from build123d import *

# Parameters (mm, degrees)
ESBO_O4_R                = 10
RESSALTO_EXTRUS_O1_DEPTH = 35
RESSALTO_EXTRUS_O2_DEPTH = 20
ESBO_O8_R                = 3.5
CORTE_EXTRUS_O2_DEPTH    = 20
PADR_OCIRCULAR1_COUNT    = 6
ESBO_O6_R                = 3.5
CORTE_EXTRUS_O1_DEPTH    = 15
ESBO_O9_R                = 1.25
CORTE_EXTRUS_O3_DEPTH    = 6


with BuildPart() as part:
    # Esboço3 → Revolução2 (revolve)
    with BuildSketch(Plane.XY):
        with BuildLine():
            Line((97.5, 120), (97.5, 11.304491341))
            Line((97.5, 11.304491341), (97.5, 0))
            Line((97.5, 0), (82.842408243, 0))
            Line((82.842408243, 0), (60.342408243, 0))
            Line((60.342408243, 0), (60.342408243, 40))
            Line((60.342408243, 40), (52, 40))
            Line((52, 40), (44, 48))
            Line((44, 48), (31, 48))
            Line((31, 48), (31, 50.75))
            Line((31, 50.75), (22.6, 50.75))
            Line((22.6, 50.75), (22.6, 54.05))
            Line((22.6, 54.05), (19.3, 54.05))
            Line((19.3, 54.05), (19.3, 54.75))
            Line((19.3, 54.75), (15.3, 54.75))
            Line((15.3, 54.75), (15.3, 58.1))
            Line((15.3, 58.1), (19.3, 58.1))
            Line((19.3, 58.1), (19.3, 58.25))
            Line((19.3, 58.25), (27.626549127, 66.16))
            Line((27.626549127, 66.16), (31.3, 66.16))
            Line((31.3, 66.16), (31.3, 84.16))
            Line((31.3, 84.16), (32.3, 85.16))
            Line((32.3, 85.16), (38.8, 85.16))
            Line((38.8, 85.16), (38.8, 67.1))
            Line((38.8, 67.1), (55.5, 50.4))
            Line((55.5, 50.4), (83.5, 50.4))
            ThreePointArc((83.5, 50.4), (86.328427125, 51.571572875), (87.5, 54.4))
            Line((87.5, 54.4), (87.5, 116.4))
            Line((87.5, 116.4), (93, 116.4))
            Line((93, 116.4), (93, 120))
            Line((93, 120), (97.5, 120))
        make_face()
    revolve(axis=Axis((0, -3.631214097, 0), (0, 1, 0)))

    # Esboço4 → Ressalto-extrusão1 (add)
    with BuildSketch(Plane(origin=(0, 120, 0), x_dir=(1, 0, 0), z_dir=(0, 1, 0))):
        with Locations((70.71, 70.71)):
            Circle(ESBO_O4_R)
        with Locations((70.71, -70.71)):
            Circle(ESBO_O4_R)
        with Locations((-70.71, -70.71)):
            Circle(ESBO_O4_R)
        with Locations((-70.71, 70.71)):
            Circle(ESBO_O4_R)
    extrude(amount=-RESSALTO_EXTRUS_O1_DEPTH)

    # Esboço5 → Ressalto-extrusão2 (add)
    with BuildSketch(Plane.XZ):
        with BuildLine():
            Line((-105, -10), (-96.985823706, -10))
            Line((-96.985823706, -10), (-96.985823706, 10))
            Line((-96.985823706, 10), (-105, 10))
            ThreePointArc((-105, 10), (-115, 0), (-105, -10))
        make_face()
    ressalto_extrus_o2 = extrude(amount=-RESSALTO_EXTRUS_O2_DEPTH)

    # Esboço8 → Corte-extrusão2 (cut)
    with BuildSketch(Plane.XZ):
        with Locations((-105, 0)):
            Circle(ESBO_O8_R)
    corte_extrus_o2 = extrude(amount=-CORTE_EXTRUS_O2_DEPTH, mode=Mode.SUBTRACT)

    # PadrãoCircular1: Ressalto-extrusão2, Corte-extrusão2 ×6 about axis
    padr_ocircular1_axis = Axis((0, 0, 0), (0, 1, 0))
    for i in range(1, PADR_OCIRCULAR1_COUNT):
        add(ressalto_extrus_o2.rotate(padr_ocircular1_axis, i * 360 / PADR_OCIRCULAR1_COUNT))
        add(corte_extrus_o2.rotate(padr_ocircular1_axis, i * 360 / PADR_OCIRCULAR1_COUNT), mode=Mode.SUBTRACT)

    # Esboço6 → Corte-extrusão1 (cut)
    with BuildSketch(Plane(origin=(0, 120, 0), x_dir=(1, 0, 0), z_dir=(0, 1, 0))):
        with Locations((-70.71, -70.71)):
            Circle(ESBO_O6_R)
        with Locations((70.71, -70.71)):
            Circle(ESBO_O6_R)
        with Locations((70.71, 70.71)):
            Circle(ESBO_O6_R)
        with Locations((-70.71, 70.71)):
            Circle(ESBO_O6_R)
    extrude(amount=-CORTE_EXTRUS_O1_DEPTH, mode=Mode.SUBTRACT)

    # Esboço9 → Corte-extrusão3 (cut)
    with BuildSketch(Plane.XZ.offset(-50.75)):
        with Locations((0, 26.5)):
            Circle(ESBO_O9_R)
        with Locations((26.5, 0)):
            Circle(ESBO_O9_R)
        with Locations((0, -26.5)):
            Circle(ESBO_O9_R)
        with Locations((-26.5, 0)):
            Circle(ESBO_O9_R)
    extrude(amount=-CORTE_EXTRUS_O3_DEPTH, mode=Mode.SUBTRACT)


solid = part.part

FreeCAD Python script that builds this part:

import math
import FreeCAD as App
import Part
import Sketcher
Q = App.Units.Quantity

doc = App.newDocument("Part")
body = doc.addObject("PartDesign::Body", "Body")

# Sketch on XY plane
sketch1 = doc.addObject("Sketcher::SketchObject", "Sketch")
body.addObject(sketch1)
sketch1.AttachmentSupport = (doc.XY_Plane, [""])
sketch1.MapMode = "FlatFace"
sketch1.addGeometry([
    Part.LineSegment(App.Vector(97.5, 0, 0), App.Vector(97.5, 120, 0)),  # 0
    Part.LineSegment(App.Vector(97.5, 120, 0), App.Vector(93, 120, 0)),  # 1
    Part.LineSegment(App.Vector(93, 120, 0), App.Vector(93, 116.4, 0)),  # 2
    Part.LineSegment(App.Vector(93, 116.4, 0), App.Vector(87.5, 116.4, 0)),  # 3
    Part.LineSegment(App.Vector(87.5, 116.4, 0), App.Vector(87.5, 54.4, 0)),  # 4
    Part.ArcOfCircle(Part.Circle(App.Vector(83.5, 54.4, 0), App.Vector(0, 0, 1), 4), math.radians(-90), math.radians(0)),  # 5
    Part.LineSegment(App.Vector(83.5, 50.4, 0), App.Vector(55.5, 50.4, 0)),  # 6
    Part.LineSegment(App.Vector(55.5, 50.4, 0), App.Vector(38.8, 67.1, 0)),  # 7
    Part.LineSegment(App.Vector(38.8, 67.1, 0), App.Vector(38.8, 85.16, 0)),  # 8
    Part.LineSegment(App.Vector(38.8, 85.16, 0), App.Vector(32.3, 85.16, 0)),  # 9
    Part.LineSegment(App.Vector(32.3, 85.16, 0), App.Vector(31.3, 84.16, 0)),  # 10
    Part.LineSegment(App.Vector(31.3, 84.16, 0), App.Vector(31.3, 66.16, 0)),  # 11
    Part.LineSegment(App.Vector(31.3, 66.16, 0), App.Vector(27.63, 66.16, 0)),  # 12
    Part.LineSegment(App.Vector(27.63, 66.16, 0), App.Vector(19.3, 58.25, 0)),  # 13
    Part.LineSegment(App.Vector(19.3, 58.25, 0), App.Vector(19.3, 58.1, 0)),  # 14
    Part.LineSegment(App.Vector(19.3, 58.1, 0), App.Vector(15.3, 58.1, 0)),  # 15
    Part.LineSegment(App.Vector(15.3, 58.1, 0), App.Vector(15.3, 54.75, 0)),  # 16
    Part.LineSegment(App.Vector(15.3, 54.75, 0), App.Vector(19.3, 54.75, 0)),  # 17
    Part.LineSegment(App.Vector(19.3, 54.75, 0), App.Vector(19.3, 54.05, 0)),  # 18
    Part.LineSegment(App.Vector(19.3, 54.05, 0), App.Vector(22.6, 54.05, 0)),  # 19
    Part.LineSegment(App.Vector(22.6, 54.05, 0), App.Vector(22.6, 50.75, 0)),  # 20
    Part.LineSegment(App.Vector(22.6, 50.75, 0), App.Vector(31, 50.75, 0)),  # 21
    Part.LineSegment(App.Vector(31, 50.75, 0), App.Vector(31, 48, 0)),  # 22
    Part.LineSegment(App.Vector(31, 48, 0), App.Vector(44, 48, 0)),  # 23
    Part.LineSegment(App.Vector(44, 48, 0), App.Vector(52, 40, 0)),  # 24
    Part.LineSegment(App.Vector(52, 40, 0), App.Vector(60.34, 40, 0)),  # 25
    Part.LineSegment(App.Vector(60.34, 40, 0), App.Vector(60.34, 0, 0)),  # 26
    Part.LineSegment(App.Vector(60.34, 0, 0), App.Vector(97.5, 0, 0)),  # 27
], False)
sketch1.addConstraint([
    Sketcher.Constraint("Coincident", 0, 2, 1, 1),
    Sketcher.Constraint("Coincident", 1, 2, 2, 1),
    Sketcher.Constraint("Coincident", 2, 2, 3, 1),
    Sketcher.Constraint("Coincident", 3, 2, 4, 1),
    Sketcher.Constraint("Tangent", 4, 2, 5, 2),
    Sketcher.Constraint("Tangent", 5, 1, 6, 1),
    Sketcher.Constraint("Coincident", 6, 2, 7, 1),
    Sketcher.Constraint("Coincident", 7, 2, 8, 1),
    Sketcher.Constraint("Coincident", 8, 2, 9, 1),
    Sketcher.Constraint("Coincident", 9, 2, 10, 1),
    Sketcher.Constraint("Coincident", 10, 2, 11, 1),
    Sketcher.Constraint("Coincident", 11, 2, 12, 1),
    Sketcher.Constraint("Coincident", 12, 2, 13, 1),
    Sketcher.Constraint("Coincident", 13, 2, 14, 1),
    Sketcher.Constraint("Coincident", 14, 2, 15, 1),
    Sketcher.Constraint("Coincident", 15, 2, 16, 1),
    Sketcher.Constraint("Coincident", 16, 2, 17, 1),
    Sketcher.Constraint("Coincident", 17, 2, 18, 1),
    Sketcher.Constraint("Coincident", 18, 2, 19, 1),
    Sketcher.Constraint("Coincident", 19, 2, 20, 1),
    Sketcher.Constraint("Coincident", 20, 2, 21, 1),
    Sketcher.Constraint("Coincident", 21, 2, 22, 1),
    Sketcher.Constraint("Coincident", 22, 2, 23, 1),
    Sketcher.Constraint("Coincident", 23, 2, 24, 1),
    Sketcher.Constraint("Coincident", 24, 2, 25, 1),
    Sketcher.Constraint("Coincident", 25, 2, 26, 1),
    Sketcher.Constraint("Coincident", 26, 2, 27, 1),
    Sketcher.Constraint("Coincident", 27, 2, 0, 1),
    Sketcher.Constraint("Vertical", 0),
    Sketcher.Constraint("Horizontal", 1),
    Sketcher.Constraint("Vertical", 2),
    Sketcher.Constraint("Horizontal", 3),
    Sketcher.Constraint("Vertical", 4),
    Sketcher.Constraint("Horizontal", 6),
    Sketcher.Constraint("Vertical", 8),
    Sketcher.Constraint("Horizontal", 9),
    Sketcher.Constraint("Vertical", 11),
    Sketcher.Constraint("Horizontal", 12),
    Sketcher.Constraint("Vertical", 14),
    Sketcher.Constraint("Horizontal", 15),
    Sketcher.Constraint("Vertical", 16),
    Sketcher.Constraint("Horizontal", 17),
    Sketcher.Constraint("Vertical", 18),
    Sketcher.Constraint("Horizontal", 19),
    Sketcher.Constraint("Vertical", 20),
    Sketcher.Constraint("Horizontal", 21),
    Sketcher.Constraint("Vertical", 22),
    Sketcher.Constraint("Horizontal", 23),
    Sketcher.Constraint("Horizontal", 25),
    Sketcher.Constraint("Vertical", 26),
    Sketcher.Constraint("Horizontal", 27),
    Sketcher.Constraint("PointOnObject", 26, 2, -1),
    Sketcher.Constraint("Perpendicular", 7, 10),
    Sketcher.Constraint("Perpendicular", 10, 24),
    Sketcher.Constraint("Vertical", 14, 2, 17, 2),
    Sketcher.Constraint("Equal", 19, 20),
    Sketcher.Constraint("Radius", 5, 4.0),
    Sketcher.Constraint("DistanceX", 6, 2, 6, 1, 28.0),
    Sketcher.Constraint("DistanceX", 15, 2, 15, 1, 4.0),
    Sketcher.Constraint("DistanceX", 23, 1, 23, 2, 13.0),
    Sketcher.Constraint("DistanceY", 0, 1, 0, 2, 120.0),
    Sketcher.Constraint("DistanceY", 4, 2, 4, 1, 62.0),
    Sketcher.Constraint("DistanceY", 11, 2, 11, 1, 18.0),
    Sketcher.Constraint("DistanceY", 26, 2, 26, 1, 40.0),
    Sketcher.Constraint("Angle", 7, Q("135 deg")),
    Sketcher.Constraint("DistanceX", 1, 2, 1, 1, 4.5),
    Sketcher.Constraint("DistanceX", 3, 2, 3, 1, 5.5),
    Sketcher.Constraint("DistanceX", 9, 2, 9, 1, 6.5),
    Sketcher.Constraint("DistanceX", 19, 1, 19, 2, 3.3),
    Sketcher.Constraint("DistanceX", 21, 1, 21, 2, 8.4),
    Sketcher.Constraint("DistanceY", 2, 2, 2, 1, 3.6),
    Sketcher.Constraint("DistanceY", 18, 2, 18, 1, 0.7),
    Sketcher.Constraint("DistanceX", -1, 1, 1, 2, 93.0),
    Sketcher.Constraint("DistanceX", -1, 1, 21, 2, 31.0),
    Sketcher.Constraint("DistanceY", -1, 1, 22, 2, 48.0),
    Sketcher.Constraint("DistanceX", 10, 2, 9, 2, 1.0),
    Sketcher.Constraint("DistanceX", 13, 2, 11, 2, 12.0),
    Sketcher.Constraint("DistanceY", 14, 2, 7, 2, 9.0),
    Sketcher.Constraint("DistanceY", 8, 1, 8, 2, 18.06),
    Sketcher.Constraint("DistanceY", 14, 2, 14, 1, 0.15),
    Sketcher.Constraint("DistanceY", 16, 2, 16, 1, 3.35),
    Sketcher.Constraint("DistanceX", 12, 2, 12, 1, 3.673451),
    Sketcher.Constraint("DistanceX", 25, 1, 25, 2, 8.342408),
])
revolution = doc.addObject("PartDesign::Revolution", "Revolution")
body.addObject(revolution)
revolution.Profile = sketch1
revolution.ReferenceAxis = (sketch1, ["V_Axis"])
revolution.Angle = 360

# Sketch on XZ plane
sketch2 = doc.addObject("Sketcher::SketchObject", "Sketch001")
body.addObject(sketch2)
sketch2.AttachmentSupport = (doc.XZ_Plane, [""])
sketch2.MapMode = "FlatFace"
sketch2.AttachmentOffset = App.Placement(App.Vector(0, 0, -120), App.Rotation())
sketch2.addGeometry([
    Part.Circle(App.Vector(71, -71, 0), App.Vector(0, 0, 1), 10),
    Part.Circle(App.Vector(71, 71, 0), App.Vector(0, 0, 1), 10),
    Part.Circle(App.Vector(-71, 71, 0), App.Vector(0, 0, 1), 10),
    Part.Circle(App.Vector(-71, -71, 0), App.Vector(0, 0, 1), 10),
], False)
sketch2.addConstraint([
    Sketcher.Constraint("Equal", 0, 1),
    Sketcher.Constraint("Equal", 1, 2),
    Sketcher.Constraint("Equal", 2, 3),
    Sketcher.Constraint("Symmetric", 0, 3, 2, 3, -1, 1),
    Sketcher.Constraint("Symmetric", 1, 3, 3, 3, -1, 1),
    Sketcher.Constraint("Symmetric", 1, 3, 2, 3, -2),
    Sketcher.Constraint("Diameter", 0, 20.0),
    Sketcher.Constraint("DistanceX", -1, 1, 0, 3, 70.71),
    Sketcher.Constraint("DistanceY", 0, 3, -1, 1, 70.71),
])
pad1 = doc.addObject("PartDesign::Pad", "Pad")
body.addObject(pad1)
pad1.Profile = sketch2
pad1.Length = 35

# Sketch on XZ plane
sketch3 = doc.addObject("Sketcher::SketchObject", "Sketch002")
body.addObject(sketch3)
sketch3.AttachmentSupport = (doc.XZ_Plane, [""])
sketch3.MapMode = "FlatFace"
sketch3.addGeometry([
    Part.LineSegment(App.Vector(-105, -10, 0), App.Vector(-97, -10, 0)),
    Part.LineSegment(App.Vector(-97, -10, 0), App.Vector(-97, 10, 0)),
    Part.LineSegment(App.Vector(-97, 10, 0), App.Vector(-105, 10, 0)),
    Part.ArcOfCircle(Part.Circle(App.Vector(-105, 0, 0), App.Vector(0, 0, 1), 10), math.radians(90), math.radians(270)),
], False)
sketch3.addConstraint([
    Sketcher.Constraint("Coincident", 0, 2, 1, 1),
    Sketcher.Constraint("Coincident", 1, 2, 2, 1),
    Sketcher.Constraint("Tangent", 2, 2, 3, 1),
    Sketcher.Constraint("Tangent", 3, 2, 0, 1),
    Sketcher.Constraint("Horizontal", 0),
    Sketcher.Constraint("Vertical", 1),
    Sketcher.Constraint("Horizontal", 2),
    Sketcher.Constraint("PointOnObject", 3, 3, -1),
    Sketcher.Constraint("Radius", 3, 10.0),
    Sketcher.Constraint("DistanceX", 3, 3, -1, 1, 105.0),
    Sketcher.Constraint("DistanceX", 0, 1, 0, 2, 8.014176),
])
pad2 = doc.addObject("PartDesign::Pad", "Pad001")
body.addObject(pad2)
pad2.Profile = sketch3
pad2.Length = 20
pad2.Reversed = True

# Sketch on XZ plane
sketch4 = doc.addObject("Sketcher::SketchObject", "Sketch003")
body.addObject(sketch4)
sketch4.AttachmentSupport = (doc.XZ_Plane, [""])
sketch4.MapMode = "FlatFace"
sketch4.addGeometry(Part.Circle(App.Vector(-105, 0, 0), App.Vector(0, 0, 1), 3.5), False)
sketch4.addConstraint([
    Sketcher.Constraint("PointOnObject", 0, 3, -1),
    Sketcher.Constraint("Diameter", 0, 7.0),
    Sketcher.Constraint("DistanceX", 0, 3, -1, 1, 105.0),
])
pocket1 = doc.addObject("PartDesign::Pocket", "Pocket")
body.addObject(pocket1)
pocket1.Profile = sketch4
pocket1.Length = 20
doc.recompute()

polarpattern = doc.addObject("PartDesign::PolarPattern", "PolarPattern")
body.addObject(polarpattern)
polarpattern.Originals = [pad2, pocket1]
polarpattern.Axis = (doc.Y_Axis, [""])
polarpattern.Angle = 360
polarpattern.Occurrences = 6
body.Tip = polarpattern

# Sketch on XZ plane
sketch5 = doc.addObject("Sketcher::SketchObject", "Sketch004")
body.addObject(sketch5)
sketch5.AttachmentSupport = (doc.XZ_Plane, [""])
sketch5.MapMode = "FlatFace"
sketch5.AttachmentOffset = App.Placement(App.Vector(0, 0, -120), App.Rotation())
sketch5.addGeometry([
    Part.Circle(App.Vector(-70.7, 70.7, 0), App.Vector(0, 0, 1), 3.5),
    Part.Circle(App.Vector(70.7, 70.7, 0), App.Vector(0, 0, 1), 3.5),
    Part.Circle(App.Vector(70.7, -70.7, 0), App.Vector(0, 0, 1), 3.5),
    Part.Circle(App.Vector(-70.7, -70.7, 0), App.Vector(0, 0, 1), 3.5),
], False)
sketch5.addConstraint([
    Sketcher.Constraint("Equal", 0, 1),
    Sketcher.Constraint("Equal", 1, 2),
    Sketcher.Constraint("Equal", 2, 3),
    Sketcher.Constraint("Symmetric", 0, 3, 2, 3, -1, 1),
    Sketcher.Constraint("Symmetric", 1, 3, 3, 3, -1, 1),
    Sketcher.Constraint("Symmetric", 0, 3, 1, 3, -2),
    Sketcher.Constraint("Diameter", 0, 7.0),
    Sketcher.Constraint("DistanceX", 0, 3, -1, 1, 70.71),
    Sketcher.Constraint("DistanceY", -1, 1, 0, 3, 70.71),
])
pocket2 = doc.addObject("PartDesign::Pocket", "Pocket001")
body.addObject(pocket2)
pocket2.Profile = sketch5
pocket2.Length = 15
pocket2.Reversed = True

# Sketch on XZ plane
sketch6 = doc.addObject("Sketcher::SketchObject", "Sketch005")
body.addObject(sketch6)
sketch6.AttachmentSupport = (doc.XZ_Plane, [""])
sketch6.MapMode = "FlatFace"
sketch6.AttachmentOffset = App.Placement(App.Vector(0, 0, -50.75), App.Rotation())
sketch6.addGeometry([
    Part.Circle(App.Vector(0, 26.5, 0), App.Vector(0, 0, 1), 1.2),
    Part.Circle(App.Vector(26.5, 0, 0), App.Vector(0, 0, 1), 1.2),
    Part.Circle(App.Vector(0, -26.5, 0), App.Vector(0, 0, 1), 1.2),
    Part.Circle(App.Vector(-26.5, 0, 0), App.Vector(0, 0, 1), 1.2),
], False)
sketch6.addConstraint([
    Sketcher.Constraint("Equal", 0, 1),
    Sketcher.Constraint("Equal", 1, 2),
    Sketcher.Constraint("Equal", 2, 3),
    Sketcher.Constraint("Symmetric", 0, 3, 2, 3, -1, 1),
    Sketcher.Constraint("Symmetric", 1, 3, 3, 3, -1, 1),
    Sketcher.Constraint("PointOnObject", 0, 3, -2),
    Sketcher.Constraint("PointOnObject", 1, 3, -1),
    Sketcher.Constraint("Diameter", 0, 2.5),
    Sketcher.Constraint("DistanceY", 2, 3, 0, 3, 53.0),
    Sketcher.Constraint("DistanceX", 3, 3, 1, 3, 53.0),
])
pocket3 = doc.addObject("PartDesign::Pocket", "Pocket002")
body.addObject(pocket3)
pocket3.Profile = sketch6
pocket3.Length = 6

doc.recompute()
